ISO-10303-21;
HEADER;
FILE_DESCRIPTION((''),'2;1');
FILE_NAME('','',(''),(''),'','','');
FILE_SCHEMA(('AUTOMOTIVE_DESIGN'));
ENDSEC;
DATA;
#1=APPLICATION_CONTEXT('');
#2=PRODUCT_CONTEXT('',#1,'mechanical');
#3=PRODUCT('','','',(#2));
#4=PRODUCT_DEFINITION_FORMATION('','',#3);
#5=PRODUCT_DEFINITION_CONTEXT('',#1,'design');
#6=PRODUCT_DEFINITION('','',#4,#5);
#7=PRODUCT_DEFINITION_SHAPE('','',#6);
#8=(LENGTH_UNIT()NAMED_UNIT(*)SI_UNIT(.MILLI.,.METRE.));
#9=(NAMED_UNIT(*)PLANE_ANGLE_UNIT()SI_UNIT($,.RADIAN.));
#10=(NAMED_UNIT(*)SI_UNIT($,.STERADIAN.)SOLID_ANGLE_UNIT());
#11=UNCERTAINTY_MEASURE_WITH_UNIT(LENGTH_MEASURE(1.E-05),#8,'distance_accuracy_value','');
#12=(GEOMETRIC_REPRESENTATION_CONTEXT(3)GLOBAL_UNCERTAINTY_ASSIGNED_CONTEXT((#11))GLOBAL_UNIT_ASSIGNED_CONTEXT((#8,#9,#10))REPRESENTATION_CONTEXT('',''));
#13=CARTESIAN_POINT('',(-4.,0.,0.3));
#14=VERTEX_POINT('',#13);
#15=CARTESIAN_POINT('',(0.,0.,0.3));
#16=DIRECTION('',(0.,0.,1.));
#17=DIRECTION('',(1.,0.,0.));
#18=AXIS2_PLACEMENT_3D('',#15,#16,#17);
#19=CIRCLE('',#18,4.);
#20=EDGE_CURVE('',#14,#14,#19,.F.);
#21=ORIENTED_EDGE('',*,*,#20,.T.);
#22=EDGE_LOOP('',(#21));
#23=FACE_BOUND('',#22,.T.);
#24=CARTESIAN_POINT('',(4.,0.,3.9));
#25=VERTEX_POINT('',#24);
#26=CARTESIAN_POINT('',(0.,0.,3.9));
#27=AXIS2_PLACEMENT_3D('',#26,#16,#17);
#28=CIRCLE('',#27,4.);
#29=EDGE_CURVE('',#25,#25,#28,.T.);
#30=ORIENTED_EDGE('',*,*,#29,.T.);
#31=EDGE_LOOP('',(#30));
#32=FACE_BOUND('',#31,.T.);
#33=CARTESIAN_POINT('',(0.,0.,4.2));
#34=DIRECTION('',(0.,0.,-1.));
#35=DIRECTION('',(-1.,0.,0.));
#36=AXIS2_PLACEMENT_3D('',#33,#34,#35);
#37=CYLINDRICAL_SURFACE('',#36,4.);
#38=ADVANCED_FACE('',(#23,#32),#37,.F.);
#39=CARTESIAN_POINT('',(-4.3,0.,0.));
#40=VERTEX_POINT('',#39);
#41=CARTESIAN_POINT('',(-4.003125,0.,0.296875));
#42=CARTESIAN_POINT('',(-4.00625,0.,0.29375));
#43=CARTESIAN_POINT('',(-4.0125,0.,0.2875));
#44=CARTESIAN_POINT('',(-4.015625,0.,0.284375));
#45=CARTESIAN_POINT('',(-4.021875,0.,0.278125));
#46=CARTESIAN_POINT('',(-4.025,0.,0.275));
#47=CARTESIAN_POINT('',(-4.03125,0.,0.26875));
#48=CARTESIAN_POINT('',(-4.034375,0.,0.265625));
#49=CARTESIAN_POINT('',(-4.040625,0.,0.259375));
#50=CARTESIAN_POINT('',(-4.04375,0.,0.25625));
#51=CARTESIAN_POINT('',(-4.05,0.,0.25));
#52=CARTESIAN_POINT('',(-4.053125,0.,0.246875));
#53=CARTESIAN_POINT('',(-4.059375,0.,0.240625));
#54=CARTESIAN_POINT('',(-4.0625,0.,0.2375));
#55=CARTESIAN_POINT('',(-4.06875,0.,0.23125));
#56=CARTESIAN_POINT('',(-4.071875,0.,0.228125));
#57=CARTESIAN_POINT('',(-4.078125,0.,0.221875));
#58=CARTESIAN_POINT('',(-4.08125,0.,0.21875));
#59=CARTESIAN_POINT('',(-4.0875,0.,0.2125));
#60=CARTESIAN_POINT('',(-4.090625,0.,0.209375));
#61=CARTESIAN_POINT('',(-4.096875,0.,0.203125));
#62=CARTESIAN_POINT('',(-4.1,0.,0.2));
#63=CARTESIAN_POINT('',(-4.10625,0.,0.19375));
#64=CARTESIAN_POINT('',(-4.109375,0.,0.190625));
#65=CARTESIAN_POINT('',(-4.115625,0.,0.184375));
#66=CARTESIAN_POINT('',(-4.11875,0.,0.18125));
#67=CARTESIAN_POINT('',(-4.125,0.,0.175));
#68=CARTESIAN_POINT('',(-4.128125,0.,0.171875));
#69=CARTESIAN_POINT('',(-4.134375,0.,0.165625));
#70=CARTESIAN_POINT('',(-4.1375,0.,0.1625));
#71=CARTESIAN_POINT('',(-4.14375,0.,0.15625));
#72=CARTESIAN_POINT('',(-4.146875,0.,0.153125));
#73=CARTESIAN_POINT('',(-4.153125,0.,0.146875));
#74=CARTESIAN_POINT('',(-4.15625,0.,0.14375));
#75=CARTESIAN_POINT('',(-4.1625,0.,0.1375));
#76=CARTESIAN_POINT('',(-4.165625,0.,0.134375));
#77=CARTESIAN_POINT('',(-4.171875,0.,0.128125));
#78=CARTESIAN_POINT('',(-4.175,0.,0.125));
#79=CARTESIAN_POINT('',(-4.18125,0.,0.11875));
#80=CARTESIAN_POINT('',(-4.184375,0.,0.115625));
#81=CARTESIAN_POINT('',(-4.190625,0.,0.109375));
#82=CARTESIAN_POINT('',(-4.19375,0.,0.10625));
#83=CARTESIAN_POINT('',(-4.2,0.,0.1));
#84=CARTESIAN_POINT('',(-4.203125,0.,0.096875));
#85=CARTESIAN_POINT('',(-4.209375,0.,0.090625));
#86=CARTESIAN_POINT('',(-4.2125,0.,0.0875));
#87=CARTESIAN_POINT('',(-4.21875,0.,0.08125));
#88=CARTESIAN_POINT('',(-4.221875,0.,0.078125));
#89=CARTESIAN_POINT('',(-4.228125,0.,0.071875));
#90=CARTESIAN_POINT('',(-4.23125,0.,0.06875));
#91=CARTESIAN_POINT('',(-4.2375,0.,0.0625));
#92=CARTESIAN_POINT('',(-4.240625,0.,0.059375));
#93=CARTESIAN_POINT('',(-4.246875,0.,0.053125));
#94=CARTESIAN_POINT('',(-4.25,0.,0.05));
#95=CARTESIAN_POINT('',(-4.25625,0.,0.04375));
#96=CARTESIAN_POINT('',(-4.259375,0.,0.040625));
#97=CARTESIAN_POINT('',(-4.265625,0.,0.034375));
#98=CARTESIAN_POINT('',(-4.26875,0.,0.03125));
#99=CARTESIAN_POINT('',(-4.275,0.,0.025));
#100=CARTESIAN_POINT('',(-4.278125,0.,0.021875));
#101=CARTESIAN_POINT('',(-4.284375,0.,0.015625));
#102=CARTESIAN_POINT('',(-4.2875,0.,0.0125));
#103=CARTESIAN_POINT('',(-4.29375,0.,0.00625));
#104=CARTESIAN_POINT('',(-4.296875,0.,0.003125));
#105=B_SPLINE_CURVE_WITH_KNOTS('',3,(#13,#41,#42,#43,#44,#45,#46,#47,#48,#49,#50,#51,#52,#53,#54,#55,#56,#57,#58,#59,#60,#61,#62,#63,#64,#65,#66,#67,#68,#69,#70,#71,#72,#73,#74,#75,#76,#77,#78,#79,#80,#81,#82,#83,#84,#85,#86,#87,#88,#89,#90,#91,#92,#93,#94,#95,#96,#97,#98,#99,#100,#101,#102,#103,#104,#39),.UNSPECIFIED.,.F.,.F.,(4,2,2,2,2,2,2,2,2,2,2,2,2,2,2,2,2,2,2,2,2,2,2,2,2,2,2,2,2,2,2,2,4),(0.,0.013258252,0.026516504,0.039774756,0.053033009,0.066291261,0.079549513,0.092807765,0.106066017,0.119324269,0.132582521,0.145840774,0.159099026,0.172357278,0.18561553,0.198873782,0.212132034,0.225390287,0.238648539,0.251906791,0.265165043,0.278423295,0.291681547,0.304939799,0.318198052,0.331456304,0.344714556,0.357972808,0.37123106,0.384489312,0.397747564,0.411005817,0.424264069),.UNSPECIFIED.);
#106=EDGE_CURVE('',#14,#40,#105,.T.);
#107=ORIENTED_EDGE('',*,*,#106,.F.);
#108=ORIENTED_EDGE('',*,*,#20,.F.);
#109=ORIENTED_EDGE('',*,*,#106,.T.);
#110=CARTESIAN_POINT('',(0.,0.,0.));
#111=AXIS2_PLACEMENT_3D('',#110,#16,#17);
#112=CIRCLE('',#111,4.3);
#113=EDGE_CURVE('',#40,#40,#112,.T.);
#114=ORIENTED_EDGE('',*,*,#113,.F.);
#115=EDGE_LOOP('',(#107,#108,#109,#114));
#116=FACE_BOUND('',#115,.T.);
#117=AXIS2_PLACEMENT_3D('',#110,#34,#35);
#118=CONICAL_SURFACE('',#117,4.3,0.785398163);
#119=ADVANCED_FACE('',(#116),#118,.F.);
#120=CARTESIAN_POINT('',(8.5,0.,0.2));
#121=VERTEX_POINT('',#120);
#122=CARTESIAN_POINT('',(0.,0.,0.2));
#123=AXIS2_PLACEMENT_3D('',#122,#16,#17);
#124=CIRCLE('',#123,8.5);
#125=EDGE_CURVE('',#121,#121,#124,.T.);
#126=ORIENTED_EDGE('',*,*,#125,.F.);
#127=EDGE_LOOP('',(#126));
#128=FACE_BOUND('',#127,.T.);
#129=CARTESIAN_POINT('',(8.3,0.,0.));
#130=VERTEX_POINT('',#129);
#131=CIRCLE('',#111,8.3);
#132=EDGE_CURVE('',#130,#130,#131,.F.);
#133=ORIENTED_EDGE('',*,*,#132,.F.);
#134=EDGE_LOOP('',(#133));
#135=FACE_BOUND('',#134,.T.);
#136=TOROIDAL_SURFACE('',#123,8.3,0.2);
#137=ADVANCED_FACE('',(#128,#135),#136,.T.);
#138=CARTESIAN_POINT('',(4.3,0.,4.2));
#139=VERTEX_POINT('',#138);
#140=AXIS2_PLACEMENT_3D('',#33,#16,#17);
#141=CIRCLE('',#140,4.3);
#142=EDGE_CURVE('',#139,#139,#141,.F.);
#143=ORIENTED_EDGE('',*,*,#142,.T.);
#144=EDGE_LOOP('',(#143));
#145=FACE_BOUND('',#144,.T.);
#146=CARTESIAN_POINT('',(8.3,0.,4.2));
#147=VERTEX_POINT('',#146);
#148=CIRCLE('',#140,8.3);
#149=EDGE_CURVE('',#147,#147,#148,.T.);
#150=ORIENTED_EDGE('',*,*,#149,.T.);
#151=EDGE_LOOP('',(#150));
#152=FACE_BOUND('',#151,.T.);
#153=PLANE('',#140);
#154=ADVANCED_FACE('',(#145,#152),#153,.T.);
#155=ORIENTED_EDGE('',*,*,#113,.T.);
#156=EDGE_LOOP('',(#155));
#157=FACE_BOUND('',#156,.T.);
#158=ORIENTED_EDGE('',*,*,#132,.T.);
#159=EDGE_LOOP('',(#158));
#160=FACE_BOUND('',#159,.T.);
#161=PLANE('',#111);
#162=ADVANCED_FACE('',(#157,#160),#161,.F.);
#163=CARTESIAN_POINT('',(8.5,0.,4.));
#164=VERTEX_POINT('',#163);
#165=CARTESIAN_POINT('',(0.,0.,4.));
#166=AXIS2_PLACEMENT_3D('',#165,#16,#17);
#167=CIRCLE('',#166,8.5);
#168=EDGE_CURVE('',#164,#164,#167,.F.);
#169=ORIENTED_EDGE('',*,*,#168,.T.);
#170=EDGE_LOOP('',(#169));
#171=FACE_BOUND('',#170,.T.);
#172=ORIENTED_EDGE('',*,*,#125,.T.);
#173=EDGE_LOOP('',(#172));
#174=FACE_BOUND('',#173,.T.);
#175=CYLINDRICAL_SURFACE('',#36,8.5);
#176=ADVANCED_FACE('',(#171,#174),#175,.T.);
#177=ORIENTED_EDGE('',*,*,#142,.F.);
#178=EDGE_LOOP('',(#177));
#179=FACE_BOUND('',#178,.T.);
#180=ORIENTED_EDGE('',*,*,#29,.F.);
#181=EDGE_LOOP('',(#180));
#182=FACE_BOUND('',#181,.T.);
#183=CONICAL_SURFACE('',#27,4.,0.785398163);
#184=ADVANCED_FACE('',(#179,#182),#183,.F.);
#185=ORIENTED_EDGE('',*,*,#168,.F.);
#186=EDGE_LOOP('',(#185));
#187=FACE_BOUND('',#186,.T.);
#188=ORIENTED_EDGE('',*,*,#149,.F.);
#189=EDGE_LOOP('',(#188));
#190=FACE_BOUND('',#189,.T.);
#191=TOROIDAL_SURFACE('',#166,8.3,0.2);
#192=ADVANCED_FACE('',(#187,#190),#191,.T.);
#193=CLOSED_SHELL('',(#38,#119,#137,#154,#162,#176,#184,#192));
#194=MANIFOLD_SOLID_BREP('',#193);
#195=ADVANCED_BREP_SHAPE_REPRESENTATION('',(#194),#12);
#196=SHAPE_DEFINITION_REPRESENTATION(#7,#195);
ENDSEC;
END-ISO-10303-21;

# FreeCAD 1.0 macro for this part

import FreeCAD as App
import Part
import Sketcher
from FreeCAD import Vector
Q = App.Units.Quantity


def edges_at(feature, points):
    """Names of the edges that pass closest to the given points."""
    edges = feature.Shape.Edges
    near = lambda p: min(range(len(edges)), key=lambda i: edges[i].distToShape(Part.Vertex(*p))[0])
    return sorted({f"Edge{near(p) + 1}" for p in points})

doc = App.newDocument("Part")
params = doc.addObject("Spreadsheet::Sheet", "Params")
for row, (alias, value) in enumerate([
    ("sketch1_diameter", "17 mm"),
    ("sketch1_diameter2", "8 mm"),
    ("pad1_length", "4.2 mm"),
    ("chamfer_size", "0.3 mm"),
    ("fillet_radius", "0.2 mm"),
], start=1):
    params.set(f"A{row}", alias)
    params.set(f"B{row}", "=" + value)
    params.setAlias(f"B{row}", alias)

body = doc.addObject("PartDesign::Body", "Body")

# Sketch on XY plane
sketch1 = body.newObject("Sketcher::SketchObject", "Sketch")
sketch1.AttachmentSupport = (doc.getObject("XY_Plane"), [""])
sketch1.MapMode = "FlatFace"
sketch1.addGeometry(Part.Circle(Vector(0, 0, 0), Vector(0, 0, 1), 8.5), False)
sketch1.addGeometry(Part.Circle(Vector(0, 0, 0), Vector(0, 0, 1), 4), False)
sketch1.addConstraint(Sketcher.Constraint("Coincident", 0, 3, -1, 1))
sketch1.addConstraint(Sketcher.Constraint("Coincident", 1, 3, -1, 1))
sketch1.addConstraint(Sketcher.Constraint("Diameter", 0, Q("17 mm")))
sketch1.addConstraint(Sketcher.Constraint("Diameter", 1, Q("8 mm")))
sketch1.setExpression("Constraints[2]", "Params.sketch1_diameter")
sketch1.setExpression("Constraints[3]", "Params.sketch1_diameter2")
pad1 = body.newObject("PartDesign::Pad", "Pad")
pad1.Profile = sketch1
pad1.setExpression("Length", "Params.pad1_length")
doc.recompute()

chamfer = body.newObject("PartDesign::Chamfer", "Chamfer")
chamfer.Base = (pad1, edges_at(pad1, [(-4, 0, 0), (-4, 0, 4.2)]))
chamfer.setExpression("Size", "Params.chamfer_size")
doc.recompute()

fillet = body.newObject("PartDesign::Fillet", "Fillet")
fillet.Base = (chamfer, edges_at(chamfer, [(-8.5, 0, 0), (-8.5, 0, 4.2)]))
fillet.setExpression("Radius", "Params.fillet_radius")

doc.recompute()
